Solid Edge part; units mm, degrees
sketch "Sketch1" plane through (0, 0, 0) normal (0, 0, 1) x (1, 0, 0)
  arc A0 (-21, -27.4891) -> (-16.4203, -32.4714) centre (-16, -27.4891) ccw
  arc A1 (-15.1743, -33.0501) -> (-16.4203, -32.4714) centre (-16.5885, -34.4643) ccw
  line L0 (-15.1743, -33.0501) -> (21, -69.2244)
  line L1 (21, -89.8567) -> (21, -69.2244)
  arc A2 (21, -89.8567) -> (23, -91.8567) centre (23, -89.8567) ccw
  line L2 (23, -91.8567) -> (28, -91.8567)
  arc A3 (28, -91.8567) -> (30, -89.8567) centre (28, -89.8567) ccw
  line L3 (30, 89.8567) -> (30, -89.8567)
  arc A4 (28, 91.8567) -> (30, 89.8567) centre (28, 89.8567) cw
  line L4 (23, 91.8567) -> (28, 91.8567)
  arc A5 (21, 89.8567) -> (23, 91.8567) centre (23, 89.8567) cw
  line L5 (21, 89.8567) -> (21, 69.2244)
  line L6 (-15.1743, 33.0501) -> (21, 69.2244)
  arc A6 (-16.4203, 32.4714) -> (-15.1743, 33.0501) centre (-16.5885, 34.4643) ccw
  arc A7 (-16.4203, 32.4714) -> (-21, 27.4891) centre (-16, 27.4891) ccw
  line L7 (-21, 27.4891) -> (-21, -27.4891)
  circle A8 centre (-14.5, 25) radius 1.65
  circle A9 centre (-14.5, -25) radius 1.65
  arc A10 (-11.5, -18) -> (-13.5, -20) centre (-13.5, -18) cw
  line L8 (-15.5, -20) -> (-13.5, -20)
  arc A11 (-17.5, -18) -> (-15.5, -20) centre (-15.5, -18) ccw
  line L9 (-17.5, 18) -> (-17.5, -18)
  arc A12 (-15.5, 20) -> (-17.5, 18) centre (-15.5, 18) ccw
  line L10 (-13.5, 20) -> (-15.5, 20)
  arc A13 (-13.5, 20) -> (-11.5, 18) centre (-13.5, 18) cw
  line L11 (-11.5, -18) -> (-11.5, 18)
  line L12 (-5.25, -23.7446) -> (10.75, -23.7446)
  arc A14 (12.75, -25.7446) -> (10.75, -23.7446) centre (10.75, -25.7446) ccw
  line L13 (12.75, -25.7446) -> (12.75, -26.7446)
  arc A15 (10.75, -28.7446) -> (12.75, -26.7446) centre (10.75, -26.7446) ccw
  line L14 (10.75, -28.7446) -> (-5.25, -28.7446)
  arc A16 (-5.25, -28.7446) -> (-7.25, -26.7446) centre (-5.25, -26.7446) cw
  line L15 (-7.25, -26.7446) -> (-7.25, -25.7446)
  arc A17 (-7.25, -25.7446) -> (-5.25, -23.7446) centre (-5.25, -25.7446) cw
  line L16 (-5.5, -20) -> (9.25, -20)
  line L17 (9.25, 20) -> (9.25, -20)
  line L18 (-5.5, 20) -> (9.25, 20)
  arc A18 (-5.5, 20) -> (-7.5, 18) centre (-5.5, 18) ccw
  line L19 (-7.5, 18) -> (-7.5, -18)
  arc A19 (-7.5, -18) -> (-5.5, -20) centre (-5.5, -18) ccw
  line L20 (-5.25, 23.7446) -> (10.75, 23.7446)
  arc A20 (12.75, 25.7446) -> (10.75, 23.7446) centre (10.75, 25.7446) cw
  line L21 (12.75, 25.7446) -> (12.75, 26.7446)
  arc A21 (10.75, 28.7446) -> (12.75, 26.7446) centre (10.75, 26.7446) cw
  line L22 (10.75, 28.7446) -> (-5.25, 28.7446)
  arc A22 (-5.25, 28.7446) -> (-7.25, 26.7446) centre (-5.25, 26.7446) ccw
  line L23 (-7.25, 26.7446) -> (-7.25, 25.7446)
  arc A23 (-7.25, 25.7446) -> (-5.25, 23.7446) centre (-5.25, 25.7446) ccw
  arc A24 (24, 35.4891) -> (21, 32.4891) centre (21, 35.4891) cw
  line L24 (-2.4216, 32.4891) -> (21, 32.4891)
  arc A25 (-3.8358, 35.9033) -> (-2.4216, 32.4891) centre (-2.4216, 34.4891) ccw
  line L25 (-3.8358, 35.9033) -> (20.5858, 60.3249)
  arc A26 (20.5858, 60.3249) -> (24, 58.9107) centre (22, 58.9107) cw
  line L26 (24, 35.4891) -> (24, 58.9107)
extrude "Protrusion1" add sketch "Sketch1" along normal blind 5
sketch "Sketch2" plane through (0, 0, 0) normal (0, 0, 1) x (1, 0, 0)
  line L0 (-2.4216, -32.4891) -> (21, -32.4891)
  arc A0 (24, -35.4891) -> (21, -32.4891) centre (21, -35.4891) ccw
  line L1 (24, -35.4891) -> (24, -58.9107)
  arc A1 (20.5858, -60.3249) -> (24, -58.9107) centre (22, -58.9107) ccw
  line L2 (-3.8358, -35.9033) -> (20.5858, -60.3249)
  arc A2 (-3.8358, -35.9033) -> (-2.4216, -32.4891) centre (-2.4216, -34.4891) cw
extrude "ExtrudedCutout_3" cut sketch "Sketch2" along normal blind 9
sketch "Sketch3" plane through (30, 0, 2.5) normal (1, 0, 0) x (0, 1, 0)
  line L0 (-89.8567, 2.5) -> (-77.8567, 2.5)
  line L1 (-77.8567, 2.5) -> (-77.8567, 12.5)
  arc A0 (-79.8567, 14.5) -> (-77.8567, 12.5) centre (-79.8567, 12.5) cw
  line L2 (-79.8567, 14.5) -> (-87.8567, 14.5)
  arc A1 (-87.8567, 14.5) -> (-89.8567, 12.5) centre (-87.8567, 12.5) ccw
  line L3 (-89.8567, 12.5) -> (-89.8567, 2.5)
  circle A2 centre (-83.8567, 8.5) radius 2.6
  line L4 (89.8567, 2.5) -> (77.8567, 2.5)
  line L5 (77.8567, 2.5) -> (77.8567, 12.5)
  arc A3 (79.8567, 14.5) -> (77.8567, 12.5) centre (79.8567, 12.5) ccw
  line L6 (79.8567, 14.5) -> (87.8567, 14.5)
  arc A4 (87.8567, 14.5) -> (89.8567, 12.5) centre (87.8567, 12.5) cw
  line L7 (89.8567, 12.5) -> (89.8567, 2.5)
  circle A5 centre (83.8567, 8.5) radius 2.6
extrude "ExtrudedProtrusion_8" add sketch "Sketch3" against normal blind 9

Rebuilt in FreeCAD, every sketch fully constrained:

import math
import FreeCAD as App
import Part
import Sketcher

V = App.Vector

doc = App.newDocument("Part")
body = doc.addObject("PartDesign::Body", "Body")

sketch1 = body.newObject("Sketcher::SketchObject", "Sketch")
sketch1.AttachmentSupport = (doc.getObject("XY_Plane"), [""])
sketch1.MapMode = "FlatFace"
sketch1.addGeometry(Part.LineSegment(V(-21, 27.5, 0), V(-21, -27.5, 0)), False)
sketch1.addGeometry(Part.ArcOfCircle(Part.Circle(V(-16, -27.5, 0), V(0, 0, 1), 5), math.radians(180), math.radians(265)), False)
sketch1.addGeometry(Part.ArcOfCircle(Part.Circle(V(-16.6, -34.5, 0), V(0, 0, 1), 2), math.radians(45), math.radians(85)), False)
sketch1.addGeometry(Part.LineSegment(V(-15.2, -33.1, 0), V(21, -69.2, 0)), False)
sketch1.addGeometry(Part.LineSegment(V(21, -69.2, 0), V(21, -89.9, 0)), False)
sketch1.addGeometry(Part.ArcOfCircle(Part.Circle(V(23, -89.9, 0), V(0, 0, 1), 2), math.radians(180), math.radians(270)), False)
sketch1.addGeometry(Part.LineSegment(V(23, -91.9, 0), V(28, -91.9, 0)), False)
sketch1.addGeometry(Part.ArcOfCircle(Part.Circle(V(28, -89.9, 0), V(0, 0, 1), 2), math.radians(-90), math.radians(0)), False)
sketch1.addGeometry(Part.LineSegment(V(30, -89.9, 0), V(30, 89.9, 0)), False)
sketch1.addGeometry(Part.ArcOfCircle(Part.Circle(V(28, 89.9, 0), V(0, 0, 1), 2), math.radians(0), math.radians(90)), False)
sketch1.addGeometry(Part.LineSegment(V(28, 91.9, 0), V(23, 91.9, 0)), False)
sketch1.addGeometry(Part.ArcOfCircle(Part.Circle(V(23, 89.9, 0), V(0, 0, 1), 2), math.radians(90), math.radians(180)), False)
sketch1.addGeometry(Part.LineSegment(V(21, 89.9, 0), V(21, 69.2, 0)), False)
sketch1.addGeometry(Part.LineSegment(V(21, 69.2, 0), V(-15.2, 33.1, 0)), False)
sketch1.addGeometry(Part.ArcOfCircle(Part.Circle(V(-16.6, 34.5, 0), V(0, 0, 1), 2), math.radians(-85), math.radians(-45)), False)
sketch1.addGeometry(Part.ArcOfCircle(Part.Circle(V(-16, 27.5, 0), V(0, 0, 1), 5), math.radians(95), math.radians(180)), False)
sketch1.addGeometry(Part.Circle(V(-14.5, -25, 0), V(0, 0, 1), 1.6), False)
sketch1.addGeometry(Part.ArcOfCircle(Part.Circle(V(-5.2, -25.7, 0), V(0, 0, 1), 2), math.radians(90), math.radians(180)), False)
sketch1.addGeometry(Part.LineSegment(V(-5.2, -23.7, 0), V(10.8, -23.7, 0)), False)
sketch1.addGeometry(Part.ArcOfCircle(Part.Circle(V(10.8, -25.7, 0), V(0, 0, 1), 2), math.radians(0), math.radians(90)), False)
sketch1.addGeometry(Part.LineSegment(V(12.8, -25.7, 0), V(12.8, -26.7, 0)), False)
sketch1.addGeometry(Part.ArcOfCircle(Part.Circle(V(10.8, -26.7, 0), V(0, 0, 1), 2), math.radians(-90), math.radians(0)), False)
sketch1.addGeometry(Part.LineSegment(V(10.8, -28.7, 0), V(-5.2, -28.7, 0)), False)
sketch1.addGeometry(Part.ArcOfCircle(Part.Circle(V(-5.2, -26.7, 0), V(0, 0, 1), 2), math.radians(180), math.radians(270)), False)
sketch1.addGeometry(Part.LineSegment(V(-7.2, -26.7, 0), V(-7.2, -25.7, 0)), False)
sketch1.addGeometry(Part.LineSegment(V(-11.5, 18, 0), V(-11.5, -18, 0)), False)
sketch1.addGeometry(Part.ArcOfCircle(Part.Circle(V(-13.5, -18, 0), V(0, 0, 1), 2), math.radians(-90), math.radians(0)), False)
sketch1.addGeometry(Part.LineSegment(V(-13.5, -20, 0), V(-15.5, -20, 0)), False)
sketch1.addGeometry(Part.ArcOfCircle(Part.Circle(V(-15.5, -18, 0), V(0, 0, 1), 2), math.radians(180), math.radians(270)), False)
sketch1.addGeometry(Part.LineSegment(V(-17.5, -18, 0), V(-17.5, 18, 0)), False)
sketch1.addGeometry(Part.ArcOfCircle(Part.Circle(V(-15.5, 18, 0), V(0, 0, 1), 2), math.radians(90), math.radians(180)), False)
sketch1.addGeometry(Part.LineSegment(V(-15.5, 20, 0), V(-13.5, 20, 0)), False)
sketch1.addGeometry(Part.ArcOfCircle(Part.Circle(V(-13.5, 18, 0), V(0, 0, 1), 2), math.radians(0), math.radians(90)), False)
sketch1.addGeometry(Part.Circle(V(-14.5, 25, 0), V(0, 0, 1), 1.6), False)
sketch1.addGeometry(Part.LineSegment(V(9.2, -20, 0), V(-5.5, -20, 0)), False)
sketch1.addGeometry(Part.ArcOfCircle(Part.Circle(V(-5.5, -18, 0), V(0, 0, 1), 2), math.radians(180), math.radians(270)), False)
sketch1.addGeometry(Part.LineSegment(V(-7.5, -18, 0), V(-7.5, 18, 0)), False)
sketch1.addGeometry(Part.ArcOfCircle(Part.Circle(V(-5.5, 18, 0), V(0, 0, 1), 2), math.radians(90), math.radians(180)), False)
sketch1.addGeometry(Part.LineSegment(V(-5.5, 20, 0), V(9.2, 20, 0)), False)
sketch1.addGeometry(Part.LineSegment(V(9.2, 20, 0), V(9.2, -20, 0)), False)
sketch1.addGeometry(Part.LineSegment(V(10.8, 23.7, 0), V(-5.2, 23.7, 0)), False)
sketch1.addGeometry(Part.ArcOfCircle(Part.Circle(V(-5.2, 25.7, 0), V(0, 0, 1), 2), math.radians(180), math.radians(270)), False)
sketch1.addGeometry(Part.LineSegment(V(-7.2, 25.7, 0), V(-7.2, 26.7, 0)), False)
sketch1.addGeometry(Part.ArcOfCircle(Part.Circle(V(-5.2, 26.7, 0), V(0, 0, 1), 2), math.radians(90), math.radians(180)), False)
sketch1.addGeometry(Part.LineSegment(V(-5.2, 28.7, 0), V(10.8, 28.7, 0)), False)
sketch1.addGeometry(Part.ArcOfCircle(Part.Circle(V(10.8, 26.7, 0), V(0, 0, 1), 2), math.radians(0), math.radians(90)), False)
sketch1.addGeometry(Part.LineSegment(V(12.8, 26.7, 0), V(12.8, 25.7, 0)), False)
sketch1.addGeometry(Part.ArcOfCircle(Part.Circle(V(10.8, 25.7, 0), V(0, 0, 1), 2), math.radians(-90), math.radians(0)), False)
sketch1.addGeometry(Part.LineSegment(V(24, 58.9, 0), V(24, 35.5, 0)), False)
sketch1.addGeometry(Part.ArcOfCircle(Part.Circle(V(21, 35.5, 0), V(0, 0, 1), 3), math.radians(-90), math.radians(0)), False)
sketch1.addGeometry(Part.LineSegment(V(21, 32.5, 0), V(-2.4, 32.5, 0)), False)
sketch1.addGeometry(Part.ArcOfCircle(Part.Circle(V(-2.4, 34.5, 0), V(0, 0, 1), 2), math.radians(135), math.radians(270)), False)
sketch1.addGeometry(Part.LineSegment(V(-3.8, 35.9, 0), V(20.6, 60.3, 0)), False)
sketch1.addGeometry(Part.ArcOfCircle(Part.Circle(V(22, 58.9, 0), V(0, 0, 1), 2), math.radians(0), math.radians(135)), False)
sketch1.addConstraint(Sketcher.Constraint("Tangent", 0, 2, 1, 1))
sketch1.addConstraint(Sketcher.Constraint("Tangent", 1, 2, 2, 2))
sketch1.addConstraint(Sketcher.Constraint("Tangent", 2, 1, 3, 1))
sketch1.addConstraint(Sketcher.Constraint("Coincident", 3, 2, 4, 1))
sketch1.addConstraint(Sketcher.Constraint("Tangent", 4, 2, 5, 1))
sketch1.addConstraint(Sketcher.Constraint("Tangent", 5, 2, 6, 1))
sketch1.addConstraint(Sketcher.Constraint("Tangent", 6, 2, 7, 1))
sketch1.addConstraint(Sketcher.Constraint("Tangent", 7, 2, 8, 1))
sketch1.addConstraint(Sketcher.Constraint("Tangent", 8, 2, 9, 1))
sketch1.addConstraint(Sketcher.Constraint("Tangent", 9, 2, 10, 1))
sketch1.addConstraint(Sketcher.Constraint("Tangent", 10, 2, 11, 1))
sketch1.addConstraint(Sketcher.Constraint("Tangent", 11, 2, 12, 1))
sketch1.addConstraint(Sketcher.Constraint("Coincident", 12, 2, 13, 1))
sketch1.addConstraint(Sketcher.Constraint("Tangent", 13, 2, 14, 2))
sketch1.addConstraint(Sketcher.Constraint("Tangent", 14, 1, 15, 1))
sketch1.addConstraint(Sketcher.Constraint("Tangent", 15, 2, 0, 1))
sketch1.addConstraint(Sketcher.Constraint("Tangent", 17, 1, 18, 1))
sketch1.addConstraint(Sketcher.Constraint("Tangent", 18, 2, 19, 2))
sketch1.addConstraint(Sketcher.Constraint("Tangent", 19, 1, 20, 1))
sketch1.addConstraint(Sketcher.Constraint("Tangent", 20, 2, 21, 2))
sketch1.addConstraint(Sketcher.Constraint("Tangent", 21, 1, 22, 1))
sketch1.addConstraint(Sketcher.Constraint("Tangent", 22, 2, 23, 2))
sketch1.addConstraint(Sketcher.Constraint("Tangent", 23, 1, 24, 1))
sketch1.addConstraint(Sketcher.Constraint("Tangent", 24, 2, 17, 2))
sketch1.addConstraint(Sketcher.Constraint("Tangent", 25, 2, 26, 2))
sketch1.addConstraint(Sketcher.Constraint("Tangent", 26, 1, 27, 1))
sketch1.addConstraint(Sketcher.Constraint("Tangent", 27, 2, 28, 2))
sketch1.addConstraint(Sketcher.Constraint("Tangent", 28, 1, 29, 1))
sketch1.addConstraint(Sketcher.Constraint("Tangent", 29, 2, 30, 2))
sketch1.addConstraint(Sketcher.Constraint("Tangent", 30, 1, 31, 1))
sketch1.addConstraint(Sketcher.Constraint("Tangent", 31, 2, 32, 2))
sketch1.addConstraint(Sketcher.Constraint("Tangent", 32, 1, 25, 1))
sketch1.addConstraint(Sketcher.Constraint("Tangent", 34, 2, 35, 2))
sketch1.addConstraint(Sketcher.Constraint("Tangent", 35, 1, 36, 1))
sketch1.addConstraint(Sketcher.Constraint("Tangent", 36, 2, 37, 2))
sketch1.addConstraint(Sketcher.Constraint("Tangent", 37, 1, 38, 1))
sketch1.addConstraint(Sketcher.Constraint("Coincident", 38, 2, 39, 1))
sketch1.addConstraint(Sketcher.Constraint("Coincident", 39, 2, 34, 1))
sketch1.addConstraint(Sketcher.Constraint("Tangent", 40, 2, 41, 2))
sketch1.addConstraint(Sketcher.Constraint("Tangent", 41, 1, 42, 1))
sketch1.addConstraint(Sketcher.Constraint("Tangent", 42, 2, 43, 2))
sketch1.addConstraint(Sketcher.Constraint("Tangent", 43, 1, 44, 1))
sketch1.addConstraint(Sketcher.Constraint("Tangent", 44, 2, 45, 2))
sketch1.addConstraint(Sketcher.Constraint("Tangent", 45, 1, 46, 1))
sketch1.addConstraint(Sketcher.Constraint("Tangent", 46, 2, 47, 2))
sketch1.addConstraint(Sketcher.Constraint("Tangent", 47, 1, 40, 1))
sketch1.addConstraint(Sketcher.Constraint("Tangent", 48, 2, 49, 2))
sketch1.addConstraint(Sketcher.Constraint("Tangent", 49, 1, 50, 1))
sketch1.addConstraint(Sketcher.Constraint("Tangent", 50, 2, 51, 2))
sketch1.addConstraint(Sketcher.Constraint("Tangent", 51, 1, 52, 1))
sketch1.addConstraint(Sketcher.Constraint("Tangent", 52, 2, 53, 2))
sketch1.addConstraint(Sketcher.Constraint("Tangent", 53, 1, 48, 1))
sketch1.addConstraint(Sketcher.Constraint("Vertical", 0))
sketch1.addConstraint(Sketcher.Constraint("Vertical", 4))
sketch1.addConstraint(Sketcher.Constraint("Horizontal", 6))
sketch1.addConstraint(Sketcher.Constraint("Vertical", 8))
sketch1.addConstraint(Sketcher.Constraint("Horizontal", 10))
sketch1.addConstraint(Sketcher.Constraint("Vertical", 12))
sketch1.addConstraint(Sketcher.Constraint("Horizontal", 18))
sketch1.addConstraint(Sketcher.Constraint("Vertical", 20))
sketch1.addConstraint(Sketcher.Constraint("Horizontal", 22))
sketch1.addConstraint(Sketcher.Constraint("Vertical", 24))
sketch1.addConstraint(Sketcher.Constraint("Vertical", 25))
sketch1.addConstraint(Sketcher.Constraint("Horizontal", 27))
sketch1.addConstraint(Sketcher.Constraint("Vertical", 29))
sketch1.addConstraint(Sketcher.Constraint("Horizontal", 31))
sketch1.addConstraint(Sketcher.Constraint("Horizontal", 34))
sketch1.addConstraint(Sketcher.Constraint("Vertical", 36))
sketch1.addConstraint(Sketcher.Constraint("Horizontal", 38))
sketch1.addConstraint(Sketcher.Constraint("Vertical", 39))
sketch1.addConstraint(Sketcher.Constraint("Horizontal", 40))
sketch1.addConstraint(Sketcher.Constraint("Vertical", 42))
sketch1.addConstraint(Sketcher.Constraint("Horizontal", 44))
sketch1.addConstraint(Sketcher.Constraint("Vertical", 46))
sketch1.addConstraint(Sketcher.Constraint("Vertical", 48))
sketch1.addConstraint(Sketcher.Constraint("Horizontal", 50))
sketch1.addConstraint(Sketcher.Constraint("Equal", 2, 5))
sketch1.addConstraint(Sketcher.Constraint("Equal", 5, 7))
sketch1.addConstraint(Sketcher.Constraint("Equal", 7, 9))
sketch1.addConstraint(Sketcher.Constraint("Equal", 9, 11))
sketch1.addConstraint(Sketcher.Constraint("Equal", 11, 14))
sketch1.addConstraint(Sketcher.Constraint("Equal", 1, 15))
sketch1.addConstraint(Sketcher.Constraint("Equal", 14, 17))
sketch1.addConstraint(Sketcher.Constraint("Equal", 17, 19))
sketch1.addConstraint(Sketcher.Constraint("Equal", 19, 21))
sketch1.addConstraint(Sketcher.Constraint("Equal", 21, 23))
sketch1.addConstraint(Sketcher.Constraint("Equal", 23, 26))
sketch1.addConstraint(Sketcher.Constraint("Equal", 26, 28))
sketch1.addConstraint(Sketcher.Constraint("Equal", 28, 30))
sketch1.addConstraint(Sketcher.Constraint("Equal", 30, 32))
sketch1.addConstraint(Sketcher.Constraint("Equal", 16, 33))
sketch1.addConstraint(Sketcher.Constraint("Equal", 32, 35))
sketch1.addConstraint(Sketcher.Constraint("Equal", 35, 37))
sketch1.addConstraint(Sketcher.Constraint("Equal", 37, 41))
sketch1.addConstraint(Sketcher.Constraint("Equal", 41, 43))
sketch1.addConstraint(Sketcher.Constraint("Equal", 43, 45))
sketch1.addConstraint(Sketcher.Constraint("Equal", 45, 47))
sketch1.addConstraint(Sketcher.Constraint("Equal", 47, 51))
sketch1.addConstraint(Sketcher.Constraint("Equal", 51, 53))
sketch1.addConstraint(Sketcher.Constraint("Symmetric", 5, 3, 11, 3, -1))
sketch1.addConstraint(Sketcher.Constraint("Symmetric", 2, 3, 14, 3, -1))
sketch1.addConstraint(Sketcher.Constraint("Symmetric", 16, 3, 33, 3, -1))
sketch1.addConstraint(Sketcher.Constraint("Symmetric", 17, 3, 41, 3, -1))
sketch1.addConstraint(Sketcher.Constraint("Symmetric", 21, 3, 45, 3, -1))
sketch1.addConstraint(Sketcher.Constraint("Perpendicular", 3, 13))
sketch1.addConstraint(Sketcher.Constraint("Parallel", 13, 52))
sketch1.addConstraint(Sketcher.Constraint("Horizontal", 28, 3, 35, 3))
sketch1.addConstraint(Sketcher.Constraint("Horizontal", 32, 3, 37, 3))
sketch1.addConstraint(Sketcher.Constraint("Vertical", 49, 3, 3, 2))
sketch1.addConstraint(Sketcher.Constraint("Vertical", 2, 1, 13, 2))
sketch1.addConstraint(Sketcher.Constraint("Radius", 1, 5.0))
sketch1.addConstraint(Sketcher.Constraint("Radius", 2, 2.0))
sketch1.addConstraint(Sketcher.Constraint("Radius", 49, 3.0))
sketch1.addConstraint(Sketcher.Constraint("Diameter", 16, 3.3))
sketch1.addConstraint(Sketcher.Constraint("DistanceX", 6, 1, 6, 2, 5.0))
sketch1.addConstraint(Sketcher.Constraint("DistanceX", 18, 1, 18, 2, 16.0))
sketch1.addConstraint(Sketcher.Constraint("DistanceX", 27, 2, 27, 1, 2.0))
sketch1.addConstraint(Sketcher.Constraint("DistanceY", 20, 2, 20, 1, 1.0))
sketch1.addConstraint(Sketcher.Constraint("DistanceY", 25, 2, 25, 1, 36.0))
sketch1.addConstraint(Sketcher.Constraint("DistanceX", 1, 3, -1, 1, 16.0))
sketch1.addConstraint(Sketcher.Constraint("DistanceX", -1, 1, 5, 3, 23.0))
sketch1.addConstraint(Sketcher.Constraint("DistanceY", 16, 3, -1, 1, 25.0))
sketch1.addConstraint(Sketcher.Constraint("DistanceY", 26, 3, -1, 1, 18.0))
sketch1.addConstraint(Sketcher.Constraint("DistanceX", 34, 2, 34, 1, 14.75))
sketch1.addConstraint(Sketcher.Constraint("DistanceX", 16, 3, -1, 1, 14.5))
sketch1.addConstraint(Sketcher.Constraint("DistanceX", 26, 3, -1, 1, 13.5))
sketch1.addConstraint(Sketcher.Constraint("DistanceX", 35, 3, -1, 1, 5.5))
sketch1.addConstraint(Sketcher.Constraint("DistanceX", 17, 3, -1, 1, 5.25))
sketch1.addConstraint(Sketcher.Constraint("DistanceY", 2, 1, -1, 1, 33.05))
sketch1.addConstraint(Sketcher.Constraint("DistanceX", 50, 2, 50, 1, 23.4216))
sketch1.addConstraint(Sketcher.Constraint("DistanceY", 0, 2, 0, 1, 54.9782))
sketch1.addConstraint(Sketcher.Constraint("DistanceY", 4, 2, 4, 1, 20.6323))
sketch1.addConstraint(Sketcher.Constraint("DistanceY", -1, 1, 49, 3, 35.489))
sketch1.addConstraint(Sketcher.Constraint("DistanceY", 17, 3, -1, 1, 25.7446))
pad1 = body.newObject("PartDesign::Pad", "Pad")
pad1.Profile = sketch1
pad1.Length = 5

sketch2 = body.newObject("Sketcher::SketchObject", "Sketch001")
sketch2.AttachmentSupport = (doc.getObject("XY_Plane"), [""])
sketch2.MapMode = "FlatFace"
sketch2.addGeometry(Part.LineSegment(V(21, -32.5, 0), V(-2.4, -32.5, 0)), False)
sketch2.addGeometry(Part.ArcOfCircle(Part.Circle(V(-2.4, -34.5, 0), V(0, 0, 1), 2), math.radians(90), math.radians(225)), False)
sketch2.addGeometry(Part.LineSegment(V(-3.8, -35.9, 0), V(20.6, -60.3, 0)), False)
sketch2.addGeometry(Part.ArcOfCircle(Part.Circle(V(22, -58.9, 0), V(0, 0, 1), 2), math.radians(-135), math.radians(0)), False)
sketch2.addGeometry(Part.LineSegment(V(24, -58.9, 0), V(24, -35.5, 0)), False)
sketch2.addGeometry(Part.ArcOfCircle(Part.Circle(V(21, -35.5, 0), V(0, 0, 1), 3), math.radians(0), math.radians(90)), False)
sketch2.addConstraint(Sketcher.Constraint("Tangent", 0, 2, 1, 1))
sketch2.addConstraint(Sketcher.Constraint("Tangent", 1, 2, 2, 1))
sketch2.addConstraint(Sketcher.Constraint("Tangent", 2, 2, 3, 1))
sketch2.addConstraint(Sketcher.Constraint("Tangent", 3, 2, 4, 1))
sketch2.addConstraint(Sketcher.Constraint("Tangent", 4, 2, 5, 1))
sketch2.addConstraint(Sketcher.Constraint("Tangent", 5, 2, 0, 1))
sketch2.addConstraint(Sketcher.Constraint("Horizontal", 0))
sketch2.addConstraint(Sketcher.Constraint("Vertical", 4))
sketch2.addConstraint(Sketcher.Constraint("Equal", 1, 3))
sketch2.addConstraint(Sketcher.Constraint("Equal", 0, 4))
sketch2.addConstraint(Sketcher.Constraint("Radius", 1, 2.0))
sketch2.addConstraint(Sketcher.Constraint("Radius", 5, 3.0))
sketch2.addConstraint(Sketcher.Constraint("DistanceX", -1, 1, 3, 3, 22.0))
sketch2.addConstraint(Sketcher.Constraint("DistanceX", 0, 2, 0, 1, 23.4216))
sketch2.addConstraint(Sketcher.Constraint("DistanceY", 1, 3, -1, 1, 34.489))
pocket1 = body.newObject("PartDesign::Pocket", "Pocket")
pocket1.Profile = sketch2
pocket1.Length = 9
pocket1.Reversed = True

sketch3 = body.newObject("Sketcher::SketchObject", "Sketch002")
sketch3.AttachmentSupport = (doc.getObject("YZ_Plane"), [""])
sketch3.MapMode = "FlatFace"
sketch3.AttachmentOffset = App.Placement(V(0, 0, 30), App.Rotation())
sketch3.addGeometry(Part.LineSegment(V(-89.9, 15, 0), V(-89.9, 5, 0)), False)
sketch3.addGeometry(Part.LineSegment(V(-89.9, 5, 0), V(-77.9, 5, 0)), False)
sketch3.addGeometry(Part.LineSegment(V(-77.9, 5, 0), V(-77.9, 15, 0)), False)
sketch3.addGeometry(Part.ArcOfCircle(Part.Circle(V(-79.9, 15, 0), V(0, 0, 1), 2), math.radians(0), math.radians(90)), False)
sketch3.addGeometry(Part.LineSegment(V(-79.9, 17, 0), V(-87.9, 17, 0)), False)
sketch3.addGeometry(Part.ArcOfCircle(Part.Circle(V(-87.9, 15, 0), V(0, 0, 1), 2), math.radians(90), math.radians(180)), False)
sketch3.addGeometry(Part.Circle(V(-83.9, 11, 0), V(0, 0, 1), 2.6), False)
sketch3.addGeometry(Part.LineSegment(V(77.9, 5, 0), V(89.9, 5, 0)), False)
sketch3.addGeometry(Part.LineSegment(V(89.9, 5, 0), V(89.9, 15, 0)), False)
sketch3.addGeometry(Part.ArcOfCircle(Part.Circle(V(87.9, 15, 0), V(0, 0, 1), 2), math.radians(0), math.radians(90)), False)
sketch3.addGeometry(Part.LineSegment(V(87.9, 17, 0), V(79.9, 17, 0)), False)
sketch3.addGeometry(Part.ArcOfCircle(Part.Circle(V(79.9, 15, 0), V(0, 0, 1), 2), math.radians(90), math.radians(180)), False)
sketch3.addGeometry(Part.LineSegment(V(77.9, 15, 0), V(77.9, 5, 0)), False)
sketch3.addGeometry(Part.Circle(V(83.9, 11, 0), V(0, 0, 1), 2.6), False)
sketch3.addConstraint(Sketcher.Constraint("Coincident", 0, 2, 1, 1))
sketch3.addConstraint(Sketcher.Constraint("Coincident", 1, 2, 2, 1))
sketch3.addConstraint(Sketcher.Constraint("Tangent", 2, 2, 3, 1))
sketch3.addConstraint(Sketcher.Constraint("Tangent", 3, 2, 4, 1))
sketch3.addConstraint(Sketcher.Constraint("Tangent", 4, 2, 5, 1))
sketch3.addConstraint(Sketcher.Constraint("Tangent", 5, 2, 0, 1))
sketch3.addConstraint(Sketcher.Constraint("Coincident", 7, 2, 8, 1))
sketch3.addConstraint(Sketcher.Constraint("Tangent", 8, 2, 9, 1))
sketch3.addConstraint(Sketcher.Constraint("Tangent", 9, 2, 10, 1))
sketch3.addConstraint(Sketcher.Constraint("Tangent", 10, 2, 11, 1))
sketch3.addConstraint(Sketcher.Constraint("Tangent", 11, 2, 12, 1))
sketch3.addConstraint(Sketcher.Constraint("Coincident", 12, 2, 7, 1))
sketch3.addConstraint(Sketcher.Constraint("Vertical", 0))
sketch3.addConstraint(Sketcher.Constraint("Horizontal", 1))
sketch3.addConstraint(Sketcher.Constraint("Vertical", 2))
sketch3.addConstraint(Sketcher.Constraint("Horizontal", 4))
sketch3.addConstraint(Sketcher.Constraint("Horizontal", 7))
sketch3.addConstraint(Sketcher.Constraint("Vertical", 8))
sketch3.addConstraint(Sketcher.Constraint("Horizontal", 10))
sketch3.addConstraint(Sketcher.Constraint("Vertical", 12))
sketch3.addConstraint(Sketcher.Constraint("Equal", 3, 5))
sketch3.addConstraint(Sketcher.Constraint("Equal", 5, 9))
sketch3.addConstraint(Sketcher.Constraint("Equal", 9, 11))
sketch3.addConstraint(Sketcher.Constraint("Equal", 6, 13))
sketch3.addConstraint(Sketcher.Constraint("Symmetric", 5, 3, 9, 3, -2))
sketch3.addConstraint(Sketcher.Constraint("Symmetric", 6, 3, 13, 3, -2))
sketch3.addConstraint(Sketcher.Constraint("Symmetric", 1, 2, 12, 2, -2))
sketch3.addConstraint(Sketcher.Constraint("Radius", 3, 2.0))
sketch3.addConstraint(Sketcher.Constraint("Diameter", 6, 5.2))
sketch3.addConstraint(Sketcher.Constraint("DistanceX", 1, 1, 1, 2, 12.0))
sketch3.addConstraint(Sketcher.Constraint("DistanceY", 0, 2, 0, 1, 10.0))
sketch3.addConstraint(Sketcher.Constraint("DistanceY", -1, 1, 3, 3, 15.0))
sketch3.addConstraint(Sketcher.Constraint("DistanceY", -1, 1, 6, 3, 11.0))
sketch3.addConstraint(Sketcher.Constraint("DistanceX", 6, 3, 3, 3, 4.0))
sketch3.addConstraint(Sketcher.Constraint("DistanceX", 3, 3, -1, 1, 79.8567))
pad2 = body.newObject("PartDesign::Pad", "Pad001")
pad2.Profile = sketch3
pad2.Length = 9
pad2.Reversed = True

doc.recompute()
